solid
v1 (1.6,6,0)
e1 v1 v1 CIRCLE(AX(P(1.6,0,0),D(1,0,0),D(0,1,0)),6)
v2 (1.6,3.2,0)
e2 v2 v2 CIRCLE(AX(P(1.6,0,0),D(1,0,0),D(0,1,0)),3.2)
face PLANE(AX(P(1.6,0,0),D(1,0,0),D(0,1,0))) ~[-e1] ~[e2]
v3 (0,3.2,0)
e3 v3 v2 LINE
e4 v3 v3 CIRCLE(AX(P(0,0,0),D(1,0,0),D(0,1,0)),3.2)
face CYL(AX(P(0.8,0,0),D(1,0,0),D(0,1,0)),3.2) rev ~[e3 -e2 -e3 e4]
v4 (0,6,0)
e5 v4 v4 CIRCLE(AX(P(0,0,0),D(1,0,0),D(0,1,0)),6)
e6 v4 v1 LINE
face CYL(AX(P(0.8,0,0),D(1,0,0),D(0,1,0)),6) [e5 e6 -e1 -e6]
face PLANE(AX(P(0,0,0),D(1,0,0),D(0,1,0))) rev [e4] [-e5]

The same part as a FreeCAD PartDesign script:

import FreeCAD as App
import Part
import Sketcher
from FreeCAD import Vector
Q = App.Units.Quantity

doc = App.newDocument("Part")
body = doc.addObject("PartDesign::Body", "Body")

# Sketch on XY plane
sketch1 = body.newObject("Sketcher::SketchObject", "Sketch")
sketch1.AttachmentSupport = (doc.getObject("XY_Plane"), [""])
sketch1.MapMode = "FlatFace"
sketch1.addGeometry(Part.LineSegment(Vector(0, 6, 0), Vector(0, 3.2, 0)), False)
sketch1.addGeometry(Part.LineSegment(Vector(0, 3.2, 0), Vector(1.6, 3.2, 0)), False)
sketch1.addGeometry(Part.LineSegment(Vector(1.6, 3.2, 0), Vector(1.6, 6, 0)), False)
sketch1.addGeometry(Part.LineSegment(Vector(1.6, 6, 0), Vector(0, 6, 0)), False)
sketch1.addConstraint(Sketcher.Constraint("Coincident", 0, 2, 1, 1))
sketch1.addConstraint(Sketcher.Constraint("Coincident", 1, 2, 2, 1))
sketch1.addConstraint(Sketcher.Constraint("Coincident", 2, 2, 3, 1))
sketch1.addConstraint(Sketcher.Constraint("Coincident", 3, 2, 0, 1))
sketch1.addConstraint(Sketcher.Constraint("Vertical", 0))
sketch1.addConstraint(Sketcher.Constraint("Horizontal", 1))
sketch1.addConstraint(Sketcher.Constraint("Vertical", 2))
sketch1.addConstraint(Sketcher.Constraint("Horizontal", 3))
sketch1.addConstraint(Sketcher.Constraint("PointOnObject", 0, 2, -2))
sketch1.addConstraint(Sketcher.Constraint("DistanceX", 1, 1, 1, 2, Q("1.6 mm")))
sketch1.addConstraint(Sketcher.Constraint("DistanceY", 0, 2, 0, 1, Q("2.8 mm")))
sketch1.addConstraint(Sketcher.Constraint("DistanceY", -1, 1, 2, 2, Q("6 mm")))
revolution = body.newObject("PartDesign::Revolution", "Revolution")
revolution.Profile = sketch1
revolution.ReferenceAxis = (sketch1, ["H_Axis"])
revolution.Angle = 360

doc.recompute()
